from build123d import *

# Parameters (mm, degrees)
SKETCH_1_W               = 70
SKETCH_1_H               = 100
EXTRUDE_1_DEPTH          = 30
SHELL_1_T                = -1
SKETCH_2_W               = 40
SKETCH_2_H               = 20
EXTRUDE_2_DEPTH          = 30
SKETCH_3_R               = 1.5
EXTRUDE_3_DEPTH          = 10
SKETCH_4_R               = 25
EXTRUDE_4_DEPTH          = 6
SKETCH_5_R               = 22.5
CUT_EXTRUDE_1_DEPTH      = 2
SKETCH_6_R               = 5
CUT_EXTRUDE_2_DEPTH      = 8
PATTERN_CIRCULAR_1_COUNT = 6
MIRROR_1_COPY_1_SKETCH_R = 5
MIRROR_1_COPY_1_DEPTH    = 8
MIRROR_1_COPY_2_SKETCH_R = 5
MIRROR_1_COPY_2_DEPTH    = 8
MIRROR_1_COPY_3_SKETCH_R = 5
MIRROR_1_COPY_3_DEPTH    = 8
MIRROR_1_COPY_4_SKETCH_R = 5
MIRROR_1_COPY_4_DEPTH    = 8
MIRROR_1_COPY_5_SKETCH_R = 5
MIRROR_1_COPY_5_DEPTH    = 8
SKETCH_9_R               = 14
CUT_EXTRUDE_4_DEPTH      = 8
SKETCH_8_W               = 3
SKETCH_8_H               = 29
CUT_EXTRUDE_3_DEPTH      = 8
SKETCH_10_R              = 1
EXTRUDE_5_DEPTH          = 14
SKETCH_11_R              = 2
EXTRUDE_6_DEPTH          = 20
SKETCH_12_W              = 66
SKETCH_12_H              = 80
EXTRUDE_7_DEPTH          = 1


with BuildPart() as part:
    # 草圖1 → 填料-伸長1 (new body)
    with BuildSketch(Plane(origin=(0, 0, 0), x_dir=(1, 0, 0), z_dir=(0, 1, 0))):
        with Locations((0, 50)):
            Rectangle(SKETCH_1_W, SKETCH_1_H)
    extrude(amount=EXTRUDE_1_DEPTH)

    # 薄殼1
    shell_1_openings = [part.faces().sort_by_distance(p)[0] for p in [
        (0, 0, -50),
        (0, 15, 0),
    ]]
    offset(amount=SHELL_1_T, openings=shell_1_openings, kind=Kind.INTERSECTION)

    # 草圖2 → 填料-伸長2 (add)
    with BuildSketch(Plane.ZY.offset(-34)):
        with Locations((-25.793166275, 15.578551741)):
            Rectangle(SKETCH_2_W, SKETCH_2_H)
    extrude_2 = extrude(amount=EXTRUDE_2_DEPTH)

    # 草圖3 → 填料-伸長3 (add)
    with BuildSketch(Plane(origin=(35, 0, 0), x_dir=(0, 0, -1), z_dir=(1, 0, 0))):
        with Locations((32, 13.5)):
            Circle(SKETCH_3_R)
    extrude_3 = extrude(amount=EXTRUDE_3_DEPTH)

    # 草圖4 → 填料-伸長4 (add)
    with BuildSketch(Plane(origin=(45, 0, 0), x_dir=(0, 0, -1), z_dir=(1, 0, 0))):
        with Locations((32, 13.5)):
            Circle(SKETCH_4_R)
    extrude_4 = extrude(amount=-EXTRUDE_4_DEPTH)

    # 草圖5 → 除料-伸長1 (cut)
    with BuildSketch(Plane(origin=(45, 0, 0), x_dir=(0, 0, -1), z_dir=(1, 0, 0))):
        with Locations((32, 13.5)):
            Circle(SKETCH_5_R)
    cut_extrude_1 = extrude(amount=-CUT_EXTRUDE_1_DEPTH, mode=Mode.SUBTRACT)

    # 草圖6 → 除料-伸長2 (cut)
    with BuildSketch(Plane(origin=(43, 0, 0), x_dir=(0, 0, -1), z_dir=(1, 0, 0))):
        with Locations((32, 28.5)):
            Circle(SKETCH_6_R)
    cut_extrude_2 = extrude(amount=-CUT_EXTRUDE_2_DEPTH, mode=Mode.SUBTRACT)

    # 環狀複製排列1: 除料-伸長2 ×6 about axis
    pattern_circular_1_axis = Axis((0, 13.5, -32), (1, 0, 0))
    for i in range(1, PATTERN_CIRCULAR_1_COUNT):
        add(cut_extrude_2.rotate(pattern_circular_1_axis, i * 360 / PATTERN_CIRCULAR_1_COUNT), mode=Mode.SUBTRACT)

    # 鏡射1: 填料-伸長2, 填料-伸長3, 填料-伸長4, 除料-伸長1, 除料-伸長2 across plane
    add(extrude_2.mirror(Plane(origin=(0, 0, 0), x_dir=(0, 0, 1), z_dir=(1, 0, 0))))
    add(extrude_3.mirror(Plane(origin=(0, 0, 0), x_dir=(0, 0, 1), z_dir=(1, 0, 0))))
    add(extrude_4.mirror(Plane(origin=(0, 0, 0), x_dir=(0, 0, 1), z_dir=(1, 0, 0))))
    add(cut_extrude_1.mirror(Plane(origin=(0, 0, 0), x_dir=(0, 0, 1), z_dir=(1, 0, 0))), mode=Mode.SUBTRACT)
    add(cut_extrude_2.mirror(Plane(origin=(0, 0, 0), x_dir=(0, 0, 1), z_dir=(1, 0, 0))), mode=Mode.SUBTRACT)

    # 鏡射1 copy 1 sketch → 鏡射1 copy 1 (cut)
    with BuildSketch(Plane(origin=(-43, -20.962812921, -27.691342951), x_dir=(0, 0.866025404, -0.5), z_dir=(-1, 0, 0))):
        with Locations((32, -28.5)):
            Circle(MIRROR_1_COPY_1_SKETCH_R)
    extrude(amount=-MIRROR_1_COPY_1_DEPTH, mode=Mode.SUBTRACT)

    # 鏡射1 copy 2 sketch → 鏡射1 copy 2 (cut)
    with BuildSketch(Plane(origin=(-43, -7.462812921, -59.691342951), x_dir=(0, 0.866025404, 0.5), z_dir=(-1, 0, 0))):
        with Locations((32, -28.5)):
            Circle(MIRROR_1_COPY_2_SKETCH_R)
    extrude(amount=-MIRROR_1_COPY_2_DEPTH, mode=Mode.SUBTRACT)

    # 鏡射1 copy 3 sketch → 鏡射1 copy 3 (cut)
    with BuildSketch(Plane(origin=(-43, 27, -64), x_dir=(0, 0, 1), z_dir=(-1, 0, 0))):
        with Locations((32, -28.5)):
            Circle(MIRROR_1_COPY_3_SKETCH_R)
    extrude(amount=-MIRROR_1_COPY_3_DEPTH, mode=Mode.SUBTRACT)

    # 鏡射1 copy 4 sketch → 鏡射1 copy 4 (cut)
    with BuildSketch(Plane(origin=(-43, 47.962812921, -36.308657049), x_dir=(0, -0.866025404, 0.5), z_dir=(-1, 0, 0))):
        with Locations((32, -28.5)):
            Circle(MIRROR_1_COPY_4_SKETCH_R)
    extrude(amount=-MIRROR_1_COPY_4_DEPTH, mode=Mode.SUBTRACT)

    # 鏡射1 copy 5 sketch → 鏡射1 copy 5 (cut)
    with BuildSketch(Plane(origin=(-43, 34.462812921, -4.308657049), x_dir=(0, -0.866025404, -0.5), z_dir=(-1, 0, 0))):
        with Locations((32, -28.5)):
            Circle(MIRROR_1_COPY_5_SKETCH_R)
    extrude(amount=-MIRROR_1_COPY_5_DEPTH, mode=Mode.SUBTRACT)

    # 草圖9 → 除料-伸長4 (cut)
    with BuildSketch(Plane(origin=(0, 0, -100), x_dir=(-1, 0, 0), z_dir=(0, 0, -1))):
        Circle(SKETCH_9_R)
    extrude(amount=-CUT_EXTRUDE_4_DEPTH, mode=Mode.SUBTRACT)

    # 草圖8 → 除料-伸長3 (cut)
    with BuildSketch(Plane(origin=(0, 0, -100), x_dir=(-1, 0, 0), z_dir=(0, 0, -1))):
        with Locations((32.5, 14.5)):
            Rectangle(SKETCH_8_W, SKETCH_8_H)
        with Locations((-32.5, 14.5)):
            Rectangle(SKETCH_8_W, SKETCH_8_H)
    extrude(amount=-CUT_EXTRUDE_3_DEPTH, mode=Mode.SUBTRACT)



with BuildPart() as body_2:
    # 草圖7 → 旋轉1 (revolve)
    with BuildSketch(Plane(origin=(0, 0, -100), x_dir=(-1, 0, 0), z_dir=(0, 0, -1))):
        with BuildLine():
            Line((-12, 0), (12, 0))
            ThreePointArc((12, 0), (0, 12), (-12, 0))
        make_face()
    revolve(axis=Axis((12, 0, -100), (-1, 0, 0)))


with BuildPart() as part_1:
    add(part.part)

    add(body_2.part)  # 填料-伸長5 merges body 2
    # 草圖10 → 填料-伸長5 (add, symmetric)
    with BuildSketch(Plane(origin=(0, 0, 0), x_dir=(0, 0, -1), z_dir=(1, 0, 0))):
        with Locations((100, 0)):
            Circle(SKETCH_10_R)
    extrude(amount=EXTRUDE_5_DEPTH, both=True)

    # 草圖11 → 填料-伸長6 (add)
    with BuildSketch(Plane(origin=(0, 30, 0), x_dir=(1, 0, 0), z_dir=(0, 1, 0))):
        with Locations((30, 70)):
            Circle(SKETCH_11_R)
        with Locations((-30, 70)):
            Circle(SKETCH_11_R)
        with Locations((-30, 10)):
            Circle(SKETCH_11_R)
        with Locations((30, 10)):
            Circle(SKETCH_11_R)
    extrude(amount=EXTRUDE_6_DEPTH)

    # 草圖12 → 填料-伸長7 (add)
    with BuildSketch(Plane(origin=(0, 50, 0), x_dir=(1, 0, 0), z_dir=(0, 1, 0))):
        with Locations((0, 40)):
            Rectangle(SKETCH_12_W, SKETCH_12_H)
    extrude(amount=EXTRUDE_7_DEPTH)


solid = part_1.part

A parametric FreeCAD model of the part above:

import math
import FreeCAD as App
import Part
import Sketcher

V = App.Vector


def faces_at(feature, points):
    """Names of the faces that lie closest to the given points."""
    faces = feature.Shape.Faces
    near = lambda p: min(range(len(faces)), key=lambda i: faces[i].distToShape(Part.Vertex(*p))[0])
    return sorted({f"Face{near(p) + 1}" for p in points})


def add_polygon(sketch, points):
    """Adds a closed chain of lines whose ends are joined by coincident constraints."""
    first, n = sketch.GeometryCount, len(points)
    for a, b in zip(points, points[1:] + points[:1]):
        sketch.addGeometry(Part.LineSegment(App.Vector(*a, 0), App.Vector(*b, 0)), False)
    for i in range(n):
        sketch.addConstraint(Sketcher.Constraint("Coincident", first + i, 2, first + (i + 1) % n, 1))

doc = App.newDocument("Part")
body = doc.addObject("PartDesign::Body", "Body")

# Sketch on XZ plane
sketch1 = body.newObject("Sketcher::SketchObject", "Sketch")
sketch1.AttachmentSupport = (doc.getObject("XZ_Plane"), [""])
sketch1.MapMode = "FlatFace"
add_polygon(sketch1, [(-35, -100), (-35, 0), (35, 0), (35, -100)])  # lines 0-3
sketch1.addConstraint(Sketcher.Constraint("Vertical", 0))
sketch1.addConstraint(Sketcher.Constraint("Horizontal", 1))
sketch1.addConstraint(Sketcher.Constraint("Vertical", 2))
sketch1.addConstraint(Sketcher.Constraint("Horizontal", 3))
sketch1.addConstraint(Sketcher.Constraint("Symmetric", 0, 2, 1, 2, -1, 1))
sketch1.addConstraint(Sketcher.Constraint("DistanceX", 1, 1, 1, 2, 70.0))
sketch1.addConstraint(Sketcher.Constraint("DistanceY", 0, 1, 0, 2, 100.0))
pad1 = body.newObject("PartDesign::Pad", "Pad")
pad1.Profile = sketch1
pad1.Length = 30
pad1.Reversed = True
doc.recompute()

thickness = body.newObject("PartDesign::Thickness", "Thickness")
thickness.Base = (pad1, faces_at(pad1, [(0, 0, -50), (0, 15, 0)]))
thickness.Value = 1
thickness.Reversed = True
thickness.Join = "Intersection"

# Sketch on YZ plane
sketch2 = body.newObject("Sketcher::SketchObject", "Sketch001")
sketch2.AttachmentSupport = (doc.getObject("YZ_Plane"), [""])
sketch2.MapMode = "FlatFace"
sketch2.AttachmentOffset = App.Placement(V(0, 0, 34), App.Rotation())
add_polygon(sketch2, [(26, -46), (6, -46), (6, -6), (26, -6)])  # lines 0-3
sketch2.addConstraint(Sketcher.Constraint("Horizontal", 0))
sketch2.addConstraint(Sketcher.Constraint("Vertical", 1))
sketch2.addConstraint(Sketcher.Constraint("Horizontal", 2))
sketch2.addConstraint(Sketcher.Constraint("Vertical", 3))
sketch2.addConstraint(Sketcher.Constraint("DistanceX", 0, 2, 0, 1, 20.0))
sketch2.addConstraint(Sketcher.Constraint("DistanceY", 1, 1, 1, 2, 40.0))
sketch2.addConstraint(Sketcher.Constraint("DistanceX", -1, 1, 0, 2, 5.578552))
sketch2.addConstraint(Sketcher.Constraint("DistanceY", 0, 2, -1, 1, 45.793166))
pad2 = body.newObject("PartDesign::Pad", "Pad001")
pad2.Profile = sketch2
pad2.Length = 30
pad2.Reversed = True

# Sketch on YZ plane
sketch3 = body.newObject("Sketcher::SketchObject", "Sketch002")
sketch3.AttachmentSupport = (doc.getObject("YZ_Plane"), [""])
sketch3.MapMode = "FlatFace"
sketch3.AttachmentOffset = App.Placement(V(0, 0, 35), App.Rotation())
sketch3.addGeometry(Part.Circle(V(13.5, -32, 0), V(0, 0, 1), 1.5), False)
sketch3.addConstraint(Sketcher.Constraint("Diameter", 0, 3.0))
sketch3.addConstraint(Sketcher.Constraint("DistanceY", 0, 3, -1, 1, 32.0))
sketch3.addConstraint(Sketcher.Constraint("DistanceX", -1, 1, 0, 3, 13.5))
pad3 = body.newObject("PartDesign::Pad", "Pad002")
pad3.Profile = sketch3
pad3.Length = 10

# Sketch on YZ plane
sketch4 = body.newObject("Sketcher::SketchObject", "Sketch003")
sketch4.AttachmentSupport = (doc.getObject("YZ_Plane"), [""])
sketch4.MapMode = "FlatFace"
sketch4.AttachmentOffset = App.Placement(V(0, 0, 45), App.Rotation())
sketch4.addGeometry(Part.Circle(V(14, -32, 0), V(0, 0, 1), 25), False)
sketch4.addConstraint(Sketcher.Constraint("Diameter", 0, 50.0))
sketch4.addConstraint(Sketcher.Constraint("DistanceY", 0, 3, -1, 1, 32.0))
sketch4.addConstraint(Sketcher.Constraint("DistanceX", -1, 1, 0, 3, 13.5))
pad4 = body.newObject("PartDesign::Pad", "Pad003")
pad4.Profile = sketch4
pad4.Length = 6
pad4.Reversed = True

# Sketch on YZ plane
sketch5 = body.newObject("Sketcher::SketchObject", "Sketch004")
sketch5.AttachmentSupport = (doc.getObject("YZ_Plane"), [""])
sketch5.MapMode = "FlatFace"
sketch5.AttachmentOffset = App.Placement(V(0, 0, 45), App.Rotation())
sketch5.addGeometry(Part.Circle(V(14, -32, 0), V(0, 0, 1), 22), False)
sketch5.addConstraint(Sketcher.Constraint("Diameter", 0, 45.0))
sketch5.addConstraint(Sketcher.Constraint("DistanceY", 0, 3, -1, 1, 32.0))
sketch5.addConstraint(Sketcher.Constraint("DistanceX", -1, 1, 0, 3, 13.5))
pocket1 = body.newObject("PartDesign::Pocket", "Pocket")
pocket1.Profile = sketch5
pocket1.Length = 2

# Sketch on YZ plane
sketch6 = body.newObject("Sketcher::SketchObject", "Sketch005")
sketch6.AttachmentSupport = (doc.getObject("YZ_Plane"), [""])
sketch6.MapMode = "FlatFace"
sketch6.AttachmentOffset = App.Placement(V(0, 0, 43), App.Rotation())
sketch6.addGeometry(Part.Circle(V(28, -32, 0), V(0, 0, 1), 5), False)
sketch6.addConstraint(Sketcher.Constraint("Diameter", 0, 10.0))
sketch6.addConstraint(Sketcher.Constraint("DistanceY", 0, 3, -1, 1, 32.0))
sketch6.addConstraint(Sketcher.Constraint("DistanceX", -1, 1, 0, 3, 28.5))
pocket2 = body.newObject("PartDesign::Pocket", "Pocket001")
pocket2.Profile = sketch6
pocket2.Length = 8
doc.recompute()

datumline = body.newObject("PartDesign::Line", "DatumLine")
datumline.Placement = App.Placement(V(0, 13.5, -32), App.Rotation(V(0, 0, 1), V(1, 0, 0)))
polarpattern = body.newObject("PartDesign::PolarPattern", "PolarPattern")
polarpattern.Originals = [pocket2]
polarpattern.Axis = (datumline, [""])
polarpattern.Angle = 360
polarpattern.Occurrences = 6
body.Tip = polarpattern
doc.recompute()

mirrored = body.newObject("PartDesign::Mirrored", "Mirrored")
mirrored.Originals = [pad2, pad3, pad4, pocket1, pocket2]
mirrored.MirrorPlane = (doc.getObject("YZ_Plane"), [""])
body.Tip = mirrored

# Sketch on YZ plane
sketch7 = body.newObject("Sketcher::SketchObject", "Sketch006")
sketch7.AttachmentSupport = (doc.getObject("YZ_Plane"), [""])
sketch7.MapMode = "FlatFace"
sketch7.AttachmentOffset = App.Placement(V(0, 0, -43), App.Rotation())
sketch7.addGeometry(Part.Circle(V(21, -19, 0), V(0, 0, 1), 5), False)
sketch7.addConstraint(Sketcher.Constraint("Diameter", 0, 10.0))
sketch7.addConstraint(Sketcher.Constraint("DistanceX", -1, 1, 0, 3, 21.0))
sketch7.addConstraint(Sketcher.Constraint("DistanceY", 0, 3, -1, 1, 19.009619))
pocket3 = body.newObject("PartDesign::Pocket", "Pocket002")
pocket3.Profile = sketch7
pocket3.Length = 8
pocket3.Reversed = True

# Sketch on YZ plane
sketch8 = body.newObject("Sketcher::SketchObject", "Sketch007")
sketch8.AttachmentSupport = (doc.getObject("YZ_Plane"), [""])
sketch8.MapMode = "FlatFace"
sketch8.AttachmentOffset = App.Placement(V(0, 0, -43), App.Rotation())
sketch8.addGeometry(Part.Circle(V(6, -19, 0), V(0, 0, 1), 5), False)
sketch8.addConstraint(Sketcher.Constraint("Diameter", 0, 10.0))
sketch8.addConstraint(Sketcher.Constraint("DistanceX", -1, 1, 0, 3, 6.0))
sketch8.addConstraint(Sketcher.Constraint("DistanceY", 0, 3, -1, 1, 19.009619))
pocket4 = body.newObject("PartDesign::Pocket", "Pocket003")
pocket4.Profile = sketch8
pocket4.Length = 8
pocket4.Reversed = True

# Sketch on YZ plane
sketch9 = body.newObject("Sketcher::SketchObject", "Sketch008")
sketch9.AttachmentSupport = (doc.getObject("YZ_Plane"), [""])
sketch9.MapMode = "FlatFace"
sketch9.AttachmentOffset = App.Placement(V(0, 0, -43), App.Rotation())
sketch9.addGeometry(Part.Circle(V(-2, -32, 0), V(0, 0, 1), 5), False)
sketch9.addConstraint(Sketcher.Constraint("Diameter", 0, 10.0))
sketch9.addConstraint(Sketcher.Constraint("DistanceY", 0, 3, -1, 1, 32.0))
sketch9.addConstraint(Sketcher.Constraint("DistanceX", 0, 3, -1, 1, 1.5))
pocket5 = body.newObject("PartDesign::Pocket", "Pocket004")
pocket5.Profile = sketch9
pocket5.Length = 8
pocket5.Reversed = True

# Sketch on YZ plane
sketch10 = body.newObject("Sketcher::SketchObject", "Sketch009")
sketch10.AttachmentSupport = (doc.getObject("YZ_Plane"), [""])
sketch10.MapMode = "FlatFace"
sketch10.AttachmentOffset = App.Placement(V(0, 0, -43), App.Rotation())
sketch10.addGeometry(Part.Circle(V(6, -45, 0), V(0, 0, 1), 5), False)
sketch10.addConstraint(Sketcher.Constraint("Diameter", 0, 10.0))
sketch10.addConstraint(Sketcher.Constraint("DistanceX", -1, 1, 0, 3, 6.0))
sketch10.addConstraint(Sketcher.Constraint("DistanceY", 0, 3, -1, 1, 44.990381))
pocket6 = body.newObject("PartDesign::Pocket", "Pocket005")
pocket6.Profile = sketch10
pocket6.Length = 8
pocket6.Reversed = True

# Sketch on YZ plane
sketch11 = body.newObject("Sketcher::SketchObject", "Sketch010")
sketch11.AttachmentSupport = (doc.getObject("YZ_Plane"), [""])
sketch11.MapMode = "FlatFace"
sketch11.AttachmentOffset = App.Placement(V(0, 0, -43), App.Rotation())
sketch11.addGeometry(Part.Circle(V(21, -45, 0), V(0, 0, 1), 5), False)
sketch11.addConstraint(Sketcher.Constraint("Diameter", 0, 10.0))
sketch11.addConstraint(Sketcher.Constraint("DistanceX", -1, 1, 0, 3, 21.0))
sketch11.addConstraint(Sketcher.Constraint("DistanceY", 0, 3, -1, 1, 44.990381))
pocket7 = body.newObject("PartDesign::Pocket", "Pocket006")
pocket7.Profile = sketch11
pocket7.Length = 8
pocket7.Reversed = True

# Sketch on XY plane
sketch12 = body.newObject("Sketcher::SketchObject", "Sketch011")
sketch12.AttachmentSupport = (doc.getObject("XY_Plane"), [""])
sketch12.MapMode = "FlatFace"
sketch12.AttachmentOffset = App.Placement(V(0, 0, -100), App.Rotation())
sketch12.addGeometry(Part.Circle(V(0, 0, 0), V(0, 0, 1), 14), False)
sketch12.addConstraint(Sketcher.Constraint("Coincident", 0, 3, -1, 1))
sketch12.addConstraint(Sketcher.Constraint("Diameter", 0, 28.0))
pocket8 = body.newObject("PartDesign::Pocket", "Pocket007")
pocket8.Profile = sketch12
pocket8.Length = 8
pocket8.Reversed = True

# Sketch on XY plane
sketch13 = body.newObject("Sketcher::SketchObject", "Sketch012")
sketch13.AttachmentSupport = (doc.getObject("XY_Plane"), [""])
sketch13.MapMode = "FlatFace"
sketch13.AttachmentOffset = App.Placement(V(0, 0, -100), App.Rotation())
add_polygon(sketch13, [(-31, 29), (-31, 0), (-34, 0), (-34, 29)])  # lines 0-3
add_polygon(sketch13, [(34, 29), (34, 0), (31, 0), (31, 29)])  # lines 4-7
sketch13.addConstraint(Sketcher.Constraint("Vertical", 0))
sketch13.addConstraint(Sketcher.Constraint("Horizontal", 1))
sketch13.addConstraint(Sketcher.Constraint("Vertical", 2))
sketch13.addConstraint(Sketcher.Constraint("Horizontal", 3))
sketch13.addConstraint(Sketcher.Constraint("Vertical", 4))
sketch13.addConstraint(Sketcher.Constraint("Horizontal", 5))
sketch13.addConstraint(Sketcher.Constraint("Vertical", 6))
sketch13.addConstraint(Sketcher.Constraint("Horizontal", 7))
sketch13.addConstraint(Sketcher.Constraint("Symmetric", 1, 2, 4, 2, -1, 1))
sketch13.addConstraint(Sketcher.Constraint("Symmetric", 0, 2, 5, 2, -2))
sketch13.addConstraint(Sketcher.Constraint("Horizontal", 3, 2, 6, 2))
sketch13.addConstraint(Sketcher.Constraint("DistanceX", 1, 2, 1, 1, 3.0))
sketch13.addConstraint(Sketcher.Constraint("DistanceY", 0, 2, 0, 1, 29.0))
sketch13.addConstraint(Sketcher.Constraint("DistanceX", 0, 2, -1, 1, 31.0))
pocket9 = body.newObject("PartDesign::Pocket", "Pocket008")
pocket9.Profile = sketch13
pocket9.Length = 8
pocket9.Reversed = True
body2 = doc.addObject("PartDesign::Body", "Body001")

# Sketch on XY plane
sketch14 = body2.newObject("Sketcher::SketchObject", "Sketch013")
sketch14.AttachmentSupport = (doc.getObject("XY_Plane001"), [""])
sketch14.MapMode = "FlatFace"
sketch14.AttachmentOffset = App.Placement(V(0, 0, -100), App.Rotation())
sketch14.addGeometry(Part.LineSegment(V(12, 0, 0), V(-12, 0, 0)), False)
sketch14.addGeometry(Part.ArcOfCircle(Part.Circle(V(0, 0, 0), V(0, 0, 1), 12), math.radians(0), math.radians(180)), False)
sketch14.addConstraint(Sketcher.Constraint("Coincident", 0, 1, 1, 1))
sketch14.addConstraint(Sketcher.Constraint("Coincident", 1, 2, 0, 2))
sketch14.addConstraint(Sketcher.Constraint("Horizontal", 0))
sketch14.addConstraint(Sketcher.Constraint("Coincident", 1, 3, -1, 1))
sketch14.addConstraint(Sketcher.Constraint("PointOnObject", 0, 1, -1))
sketch14.addConstraint(Sketcher.Constraint("Radius", 1, 12.0))
revolution = body2.newObject("PartDesign::Revolution", "Revolution")
revolution.Profile = sketch14
revolution.ReferenceAxis = (sketch14, ["H_Axis"])
revolution.Angle = 360
body.AllowCompound = True
doc.recompute()

boolean = body.newObject("PartDesign::Boolean", "Boolean")
boolean.Type = "Fuse"
boolean.addObjects([body2])

# Sketch on YZ plane
sketch15 = body.newObject("Sketcher::SketchObject", "Sketch014")
sketch15.AttachmentSupport = (doc.getObject("YZ_Plane"), [""])
sketch15.MapMode = "FlatFace"
sketch15.addGeometry(Part.Circle(V(0, -100, 0), V(0, 0, 1), 1), False)
sketch15.addConstraint(Sketcher.Constraint("PointOnObject", 0, 3, -2))
sketch15.addConstraint(Sketcher.Constraint("Diameter", 0, 2.0))
sketch15.addConstraint(Sketcher.Constraint("DistanceY", 0, 3, -1, 1, 100.0))
pad5 = body.newObject("PartDesign::Pad", "Pad004")
pad5.Profile = sketch15
pad5.Length = 28
pad5.Midplane = True

# Sketch on XZ plane
sketch16 = body.newObject("Sketcher::SketchObject", "Sketch015")
sketch16.AttachmentSupport = (doc.getObject("XZ_Plane"), [""])
sketch16.MapMode = "FlatFace"
sketch16.AttachmentOffset = App.Placement(V(0, 0, -30), App.Rotation())
sketch16.addGeometry(Part.Circle(V(30, -70, 0), V(0, 0, 1), 2), False)
sketch16.addGeometry(Part.Circle(V(-30, -70, 0), V(0, 0, 1), 2), False)
sketch16.addGeometry(Part.Circle(V(-30, -10, 0), V(0, 0, 1), 2), False)
sketch16.addGeometry(Part.Circle(V(30, -10, 0), V(0, 0, 1), 2), False)
sketch16.addConstraint(Sketcher.Constraint("Equal", 0, 1))
sketch16.addConstraint(Sketcher.Constraint("Equal", 1, 2))
sketch16.addConstraint(Sketcher.Constraint("Equal", 2, 3))
sketch16.addConstraint(Sketcher.Constraint("Symmetric", 0, 3, 1, 3, -2))
sketch16.addConstraint(Sketcher.Constraint("Symmetric", 2, 3, 3, 3, -2))
sketch16.addConstraint(Sketcher.Constraint("Vertical", 1, 3, 2, 3))
sketch16.addConstraint(Sketcher.Constraint("Diameter", 0, 4.0))
sketch16.addConstraint(Sketcher.Constraint("DistanceX", -1, 1, 0, 3, 30.0))
sketch16.addConstraint(Sketcher.Constraint("DistanceY", 0, 3, -1, 1, 70.0))
sketch16.addConstraint(Sketcher.Constraint("DistanceY", 2, 3, -1, 1, 10.0))
pad6 = body.newObject("PartDesign::Pad", "Pad005")
pad6.Profile = sketch16
pad6.Length = 20
pad6.Reversed = True

# Sketch on XZ plane
sketch17 = body.newObject("Sketcher::SketchObject", "Sketch016")
sketch17.AttachmentSupport = (doc.getObject("XZ_Plane"), [""])
sketch17.MapMode = "FlatFace"
sketch17.AttachmentOffset = App.Placement(V(0, 0, -50), App.Rotation())
add_polygon(sketch17, [(-33, -80), (-33, 0), (33, 0), (33, -80)])  # lines 0-3
sketch17.addConstraint(Sketcher.Constraint("Vertical", 0))
sketch17.addConstraint(Sketcher.Constraint("Horizontal", 1))
sketch17.addConstraint(Sketcher.Constraint("Vertical", 2))
sketch17.addConstraint(Sketcher.Constraint("Horizontal", 3))
sketch17.addConstraint(Sketcher.Constraint("Symmetric", 0, 2, 1, 2, -1, 1))
sketch17.addConstraint(Sketcher.Constraint("DistanceX", 1, 1, 1, 2, 66.0))
sketch17.addConstraint(Sketcher.Constraint("DistanceY", 0, 1, 0, 2, 80.0))
pad7 = body.newObject("PartDesign::Pad", "Pad006")
pad7.Profile = sketch17
pad7.Length = 1
pad7.Reversed = True

doc.recompute()
